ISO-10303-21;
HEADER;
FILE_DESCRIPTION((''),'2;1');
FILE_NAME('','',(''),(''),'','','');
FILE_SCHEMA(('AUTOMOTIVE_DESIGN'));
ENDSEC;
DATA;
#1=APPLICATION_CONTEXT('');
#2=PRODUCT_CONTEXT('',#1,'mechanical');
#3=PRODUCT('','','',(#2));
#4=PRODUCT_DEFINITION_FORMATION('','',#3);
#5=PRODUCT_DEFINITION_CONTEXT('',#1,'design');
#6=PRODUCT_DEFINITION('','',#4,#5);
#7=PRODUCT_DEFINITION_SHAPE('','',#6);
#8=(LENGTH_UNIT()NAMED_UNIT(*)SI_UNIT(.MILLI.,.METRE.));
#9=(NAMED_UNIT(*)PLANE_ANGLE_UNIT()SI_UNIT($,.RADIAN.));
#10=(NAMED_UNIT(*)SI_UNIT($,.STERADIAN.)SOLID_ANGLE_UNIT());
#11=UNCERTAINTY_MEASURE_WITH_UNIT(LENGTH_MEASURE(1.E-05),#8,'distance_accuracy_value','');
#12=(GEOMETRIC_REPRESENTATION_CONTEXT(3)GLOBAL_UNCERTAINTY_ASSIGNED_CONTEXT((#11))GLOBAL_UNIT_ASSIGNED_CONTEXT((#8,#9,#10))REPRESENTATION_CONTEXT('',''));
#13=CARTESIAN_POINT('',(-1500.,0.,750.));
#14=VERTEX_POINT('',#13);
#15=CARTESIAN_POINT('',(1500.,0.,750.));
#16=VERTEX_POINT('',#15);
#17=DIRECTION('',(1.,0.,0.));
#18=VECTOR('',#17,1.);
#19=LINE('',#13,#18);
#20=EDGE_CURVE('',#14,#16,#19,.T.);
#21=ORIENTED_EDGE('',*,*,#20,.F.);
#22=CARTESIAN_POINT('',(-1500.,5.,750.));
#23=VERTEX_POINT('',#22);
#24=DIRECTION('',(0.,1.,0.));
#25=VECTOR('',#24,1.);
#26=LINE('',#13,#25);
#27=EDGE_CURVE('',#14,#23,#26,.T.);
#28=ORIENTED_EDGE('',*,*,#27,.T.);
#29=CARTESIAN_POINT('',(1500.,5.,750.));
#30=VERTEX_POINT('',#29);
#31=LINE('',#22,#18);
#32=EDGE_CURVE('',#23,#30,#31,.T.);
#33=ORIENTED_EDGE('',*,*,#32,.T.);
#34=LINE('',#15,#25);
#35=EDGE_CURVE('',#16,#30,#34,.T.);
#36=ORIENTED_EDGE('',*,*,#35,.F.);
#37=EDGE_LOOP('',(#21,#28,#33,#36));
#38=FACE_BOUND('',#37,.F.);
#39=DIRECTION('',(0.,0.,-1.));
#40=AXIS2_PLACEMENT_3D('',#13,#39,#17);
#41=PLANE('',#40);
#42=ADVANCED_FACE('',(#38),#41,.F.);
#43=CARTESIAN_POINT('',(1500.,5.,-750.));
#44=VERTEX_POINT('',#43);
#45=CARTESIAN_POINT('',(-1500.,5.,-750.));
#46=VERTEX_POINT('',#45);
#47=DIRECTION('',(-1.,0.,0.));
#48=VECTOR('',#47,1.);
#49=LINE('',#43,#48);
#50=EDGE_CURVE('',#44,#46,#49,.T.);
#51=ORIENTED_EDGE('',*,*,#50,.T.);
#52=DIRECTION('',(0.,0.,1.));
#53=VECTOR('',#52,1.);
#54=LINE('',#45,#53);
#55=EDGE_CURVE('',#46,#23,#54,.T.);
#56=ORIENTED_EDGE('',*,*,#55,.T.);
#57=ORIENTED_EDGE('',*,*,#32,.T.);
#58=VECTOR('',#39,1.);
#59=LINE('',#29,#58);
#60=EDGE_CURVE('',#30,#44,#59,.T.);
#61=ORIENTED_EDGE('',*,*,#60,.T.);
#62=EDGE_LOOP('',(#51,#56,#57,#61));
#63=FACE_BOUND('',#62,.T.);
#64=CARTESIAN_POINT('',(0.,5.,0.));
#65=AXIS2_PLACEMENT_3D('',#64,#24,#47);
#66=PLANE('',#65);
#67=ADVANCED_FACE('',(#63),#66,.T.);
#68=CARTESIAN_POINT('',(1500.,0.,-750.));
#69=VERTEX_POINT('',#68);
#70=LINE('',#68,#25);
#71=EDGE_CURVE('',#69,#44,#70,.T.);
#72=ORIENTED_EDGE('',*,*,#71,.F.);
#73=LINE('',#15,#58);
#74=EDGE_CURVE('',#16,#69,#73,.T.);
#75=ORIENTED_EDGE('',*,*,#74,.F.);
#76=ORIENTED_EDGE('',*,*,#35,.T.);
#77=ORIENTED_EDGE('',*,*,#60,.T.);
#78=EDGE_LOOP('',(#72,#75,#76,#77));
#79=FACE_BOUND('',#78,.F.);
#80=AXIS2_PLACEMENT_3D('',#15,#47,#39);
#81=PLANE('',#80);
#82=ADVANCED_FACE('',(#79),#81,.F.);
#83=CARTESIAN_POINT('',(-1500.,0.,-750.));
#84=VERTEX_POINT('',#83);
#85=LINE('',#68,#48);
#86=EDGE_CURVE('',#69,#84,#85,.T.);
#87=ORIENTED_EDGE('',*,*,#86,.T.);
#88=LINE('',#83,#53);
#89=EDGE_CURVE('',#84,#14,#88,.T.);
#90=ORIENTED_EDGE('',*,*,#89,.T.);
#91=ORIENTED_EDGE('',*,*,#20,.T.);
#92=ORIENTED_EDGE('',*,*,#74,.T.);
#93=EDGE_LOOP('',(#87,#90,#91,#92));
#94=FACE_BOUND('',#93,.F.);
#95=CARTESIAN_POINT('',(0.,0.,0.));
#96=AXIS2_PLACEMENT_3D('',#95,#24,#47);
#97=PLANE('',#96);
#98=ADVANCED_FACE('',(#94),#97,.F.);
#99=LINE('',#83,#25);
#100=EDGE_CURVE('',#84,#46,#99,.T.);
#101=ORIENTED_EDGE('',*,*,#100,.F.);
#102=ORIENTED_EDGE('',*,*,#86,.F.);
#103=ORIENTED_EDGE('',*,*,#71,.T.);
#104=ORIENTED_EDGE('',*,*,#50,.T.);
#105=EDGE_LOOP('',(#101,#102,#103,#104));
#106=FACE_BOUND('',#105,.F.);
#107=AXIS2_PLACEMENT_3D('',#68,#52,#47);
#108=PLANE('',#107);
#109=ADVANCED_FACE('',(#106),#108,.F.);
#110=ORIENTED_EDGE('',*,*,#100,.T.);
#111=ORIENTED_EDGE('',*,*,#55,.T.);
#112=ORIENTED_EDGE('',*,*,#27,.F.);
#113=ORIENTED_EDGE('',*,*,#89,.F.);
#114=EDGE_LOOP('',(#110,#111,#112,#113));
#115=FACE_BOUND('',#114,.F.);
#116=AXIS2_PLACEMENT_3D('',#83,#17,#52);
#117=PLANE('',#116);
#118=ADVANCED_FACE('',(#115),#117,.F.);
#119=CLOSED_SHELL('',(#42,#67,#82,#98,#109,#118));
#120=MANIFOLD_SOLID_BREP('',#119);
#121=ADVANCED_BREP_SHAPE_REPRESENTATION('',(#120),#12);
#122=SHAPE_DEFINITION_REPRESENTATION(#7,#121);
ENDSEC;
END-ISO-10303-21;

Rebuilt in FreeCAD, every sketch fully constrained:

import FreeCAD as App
import Part
import Sketcher

V = App.Vector
Q = App.Units.Quantity

doc = App.newDocument("Part")
body = doc.addObject("PartDesign::Body", "Body")

sketch1 = body.newObject("Sketcher::SketchObject", "Sketch")
sketch1.AttachmentSupport = (doc.getObject("XZ_Plane"), [""])
sketch1.MapMode = "FlatFace"
sketch1.addGeometry(Part.LineSegment(V(-1500, -750, 0), V(-1500, 750, 0)), False)
sketch1.addGeometry(Part.LineSegment(V(-1500, 750, 0), V(1500, 750, 0)), False)
sketch1.addGeometry(Part.LineSegment(V(1500, 750, 0), V(1500, -750, 0)), False)
sketch1.addGeometry(Part.LineSegment(V(1500, -750, 0), V(-1500, -750, 0)), False)
sketch1.addConstraint(Sketcher.Constraint("Coincident", 0, 2, 1, 1))
sketch1.addConstraint(Sketcher.Constraint("Coincident", 1, 2, 2, 1))
sketch1.addConstraint(Sketcher.Constraint("Coincident", 2, 2, 3, 1))
sketch1.addConstraint(Sketcher.Constraint("Coincident", 3, 2, 0, 1))
sketch1.addConstraint(Sketcher.Constraint("Vertical", 0))
sketch1.addConstraint(Sketcher.Constraint("Horizontal", 1))
sketch1.addConstraint(Sketcher.Constraint("Vertical", 2))
sketch1.addConstraint(Sketcher.Constraint("Horizontal", 3))
sketch1.addConstraint(Sketcher.Constraint("Symmetric", 0, 2, 2, 2, -1, 1))
sketch1.addConstraint(Sketcher.Constraint("DistanceX", 1, 1, 1, 2, Q("3000 mm")))
sketch1.addConstraint(Sketcher.Constraint("DistanceY", 0, 1, 0, 2, Q("1500 mm")))
pad1 = body.newObject("PartDesign::Pad", "Pad")
pad1.Profile = sketch1
pad1.Length = 5
pad1.Reversed = True

doc.recompute()
